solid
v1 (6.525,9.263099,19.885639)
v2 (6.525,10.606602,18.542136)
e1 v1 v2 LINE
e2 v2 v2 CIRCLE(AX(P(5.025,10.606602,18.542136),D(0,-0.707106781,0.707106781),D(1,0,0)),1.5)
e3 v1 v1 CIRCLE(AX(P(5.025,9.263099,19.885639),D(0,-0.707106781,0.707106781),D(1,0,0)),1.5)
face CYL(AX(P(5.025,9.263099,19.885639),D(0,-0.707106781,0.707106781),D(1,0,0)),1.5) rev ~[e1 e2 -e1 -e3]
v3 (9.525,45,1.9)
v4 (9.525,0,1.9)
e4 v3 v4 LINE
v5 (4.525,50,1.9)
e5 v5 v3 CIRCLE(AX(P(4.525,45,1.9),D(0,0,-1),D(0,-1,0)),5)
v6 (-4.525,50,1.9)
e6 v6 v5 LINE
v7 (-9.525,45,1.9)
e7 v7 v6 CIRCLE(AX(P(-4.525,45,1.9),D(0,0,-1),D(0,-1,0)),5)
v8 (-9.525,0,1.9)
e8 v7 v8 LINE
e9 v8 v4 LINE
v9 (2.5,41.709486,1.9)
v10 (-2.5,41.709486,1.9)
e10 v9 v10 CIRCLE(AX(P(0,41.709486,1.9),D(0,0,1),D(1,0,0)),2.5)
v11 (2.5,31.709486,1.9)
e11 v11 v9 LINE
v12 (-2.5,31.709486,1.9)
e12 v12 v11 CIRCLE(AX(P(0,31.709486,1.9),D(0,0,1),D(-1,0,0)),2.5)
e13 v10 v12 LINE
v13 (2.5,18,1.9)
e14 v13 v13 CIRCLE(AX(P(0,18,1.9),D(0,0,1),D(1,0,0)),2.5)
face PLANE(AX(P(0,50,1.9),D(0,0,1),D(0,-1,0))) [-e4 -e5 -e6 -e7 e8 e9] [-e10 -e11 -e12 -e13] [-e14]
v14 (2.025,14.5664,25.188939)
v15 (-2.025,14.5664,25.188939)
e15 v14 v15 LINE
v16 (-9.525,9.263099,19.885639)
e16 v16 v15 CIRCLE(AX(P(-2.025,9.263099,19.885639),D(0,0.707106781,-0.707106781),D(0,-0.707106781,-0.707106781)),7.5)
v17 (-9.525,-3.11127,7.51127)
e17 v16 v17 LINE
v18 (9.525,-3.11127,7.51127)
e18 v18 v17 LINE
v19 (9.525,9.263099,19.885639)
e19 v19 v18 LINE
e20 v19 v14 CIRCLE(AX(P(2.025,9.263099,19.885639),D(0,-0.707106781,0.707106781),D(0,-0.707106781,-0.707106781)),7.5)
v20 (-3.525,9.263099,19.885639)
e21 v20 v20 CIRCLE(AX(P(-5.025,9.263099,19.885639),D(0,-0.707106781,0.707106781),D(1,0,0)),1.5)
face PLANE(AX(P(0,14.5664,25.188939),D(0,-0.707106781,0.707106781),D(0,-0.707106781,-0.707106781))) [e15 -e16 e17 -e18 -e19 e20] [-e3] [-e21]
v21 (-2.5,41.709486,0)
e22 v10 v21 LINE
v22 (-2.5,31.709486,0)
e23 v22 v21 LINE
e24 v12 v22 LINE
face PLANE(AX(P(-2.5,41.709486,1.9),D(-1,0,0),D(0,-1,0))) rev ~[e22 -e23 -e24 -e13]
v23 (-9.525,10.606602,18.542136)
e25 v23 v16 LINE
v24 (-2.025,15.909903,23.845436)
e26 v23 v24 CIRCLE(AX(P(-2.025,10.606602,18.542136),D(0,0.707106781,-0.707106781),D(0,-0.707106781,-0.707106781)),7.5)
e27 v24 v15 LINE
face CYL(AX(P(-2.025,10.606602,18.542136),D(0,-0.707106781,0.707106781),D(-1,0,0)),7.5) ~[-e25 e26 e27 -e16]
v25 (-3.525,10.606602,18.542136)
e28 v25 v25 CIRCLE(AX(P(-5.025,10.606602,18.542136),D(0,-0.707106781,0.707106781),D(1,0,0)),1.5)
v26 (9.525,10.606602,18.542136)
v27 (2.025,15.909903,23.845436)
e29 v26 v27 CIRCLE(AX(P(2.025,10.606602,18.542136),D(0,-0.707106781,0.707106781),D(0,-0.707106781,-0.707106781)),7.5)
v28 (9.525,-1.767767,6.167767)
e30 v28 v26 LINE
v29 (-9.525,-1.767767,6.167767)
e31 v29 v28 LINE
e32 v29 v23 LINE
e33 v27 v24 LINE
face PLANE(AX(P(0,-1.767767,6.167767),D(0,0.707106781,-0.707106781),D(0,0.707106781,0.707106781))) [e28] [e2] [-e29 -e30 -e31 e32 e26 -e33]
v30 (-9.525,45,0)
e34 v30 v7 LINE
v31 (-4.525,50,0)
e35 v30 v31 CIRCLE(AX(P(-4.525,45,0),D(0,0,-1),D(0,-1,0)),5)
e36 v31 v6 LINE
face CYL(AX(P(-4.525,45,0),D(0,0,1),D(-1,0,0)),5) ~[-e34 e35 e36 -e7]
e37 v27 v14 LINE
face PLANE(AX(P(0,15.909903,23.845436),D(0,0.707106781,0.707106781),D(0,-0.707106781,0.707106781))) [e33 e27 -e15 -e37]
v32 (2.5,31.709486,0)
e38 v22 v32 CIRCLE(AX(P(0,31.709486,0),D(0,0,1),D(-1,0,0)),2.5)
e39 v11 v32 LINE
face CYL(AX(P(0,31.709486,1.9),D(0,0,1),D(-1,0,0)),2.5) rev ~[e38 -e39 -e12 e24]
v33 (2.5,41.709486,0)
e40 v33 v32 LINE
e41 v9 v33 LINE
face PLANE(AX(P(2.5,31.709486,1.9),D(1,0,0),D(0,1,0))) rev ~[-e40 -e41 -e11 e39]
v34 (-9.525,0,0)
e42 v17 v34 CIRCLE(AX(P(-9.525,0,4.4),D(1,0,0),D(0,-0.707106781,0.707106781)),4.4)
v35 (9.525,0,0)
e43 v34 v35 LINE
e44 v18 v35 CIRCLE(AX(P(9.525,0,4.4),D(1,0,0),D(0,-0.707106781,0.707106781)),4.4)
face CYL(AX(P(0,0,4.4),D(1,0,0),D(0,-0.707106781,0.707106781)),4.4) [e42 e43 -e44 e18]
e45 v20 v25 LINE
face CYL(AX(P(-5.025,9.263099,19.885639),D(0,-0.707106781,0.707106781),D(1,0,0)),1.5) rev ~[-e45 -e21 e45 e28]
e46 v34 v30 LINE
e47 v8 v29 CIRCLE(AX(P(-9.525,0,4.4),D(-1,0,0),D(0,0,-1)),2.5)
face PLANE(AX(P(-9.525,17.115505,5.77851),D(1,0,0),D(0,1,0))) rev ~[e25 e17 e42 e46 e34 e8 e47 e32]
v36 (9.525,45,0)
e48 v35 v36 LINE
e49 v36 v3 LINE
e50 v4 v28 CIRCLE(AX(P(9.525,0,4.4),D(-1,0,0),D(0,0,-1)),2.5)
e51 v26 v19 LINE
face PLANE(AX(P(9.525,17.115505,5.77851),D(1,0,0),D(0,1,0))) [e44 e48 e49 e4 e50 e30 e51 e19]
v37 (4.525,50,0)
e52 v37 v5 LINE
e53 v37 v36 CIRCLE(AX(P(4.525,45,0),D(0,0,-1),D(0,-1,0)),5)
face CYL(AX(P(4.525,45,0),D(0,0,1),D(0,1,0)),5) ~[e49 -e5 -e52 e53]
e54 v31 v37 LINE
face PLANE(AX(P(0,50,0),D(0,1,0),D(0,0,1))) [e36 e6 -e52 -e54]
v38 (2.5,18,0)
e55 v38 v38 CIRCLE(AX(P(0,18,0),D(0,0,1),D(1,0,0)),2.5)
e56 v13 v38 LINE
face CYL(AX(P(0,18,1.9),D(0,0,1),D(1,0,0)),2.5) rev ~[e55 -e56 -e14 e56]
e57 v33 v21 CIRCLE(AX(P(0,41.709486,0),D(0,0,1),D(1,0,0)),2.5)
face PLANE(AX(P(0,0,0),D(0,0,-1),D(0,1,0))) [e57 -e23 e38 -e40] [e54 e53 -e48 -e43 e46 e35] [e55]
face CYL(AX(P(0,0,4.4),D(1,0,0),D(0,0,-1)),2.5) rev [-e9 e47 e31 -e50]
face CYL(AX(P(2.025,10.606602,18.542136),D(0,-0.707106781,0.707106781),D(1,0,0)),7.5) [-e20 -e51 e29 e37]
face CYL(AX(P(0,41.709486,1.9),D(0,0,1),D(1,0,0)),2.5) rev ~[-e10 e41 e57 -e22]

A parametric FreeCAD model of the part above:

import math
import FreeCAD as App
import Part
import Sketcher
from FreeCAD import Vector
Q = App.Units.Quantity


def edges_at(feature, points):
    """Names of the edges that pass closest to the given points."""
    edges = feature.Shape.Edges
    near = lambda p: min(range(len(edges)), key=lambda i: edges[i].distToShape(Part.Vertex(*p))[0])
    return sorted({f"Edge{near(p) + 1}" for p in points})

doc = App.newDocument("Part")
body = doc.addObject("PartDesign::Body", "Body")

sketch1 = body.newObject("Sketcher::SketchObject", "Sketch")
sketch1.AttachmentSupport = (doc.getObject("YZ_Plane"), [""])
sketch1.MapMode = "FlatFace"
sketch1.addGeometry([
    Part.ArcOfCircle(Part.Circle(Vector(0, 4.4, 0), Vector(0, 0, 1), 4.4), math.radians(135), math.radians(270)),
    Part.LineSegment(Vector(0, 0, 0), Vector(50, 0, 0)),
    Part.LineSegment(Vector(50, 0, 0), Vector(50, 1.9, 0)),
    Part.LineSegment(Vector(50, 1.9, 0), Vector(0, 1.9, 0)),
    Part.ArcOfCircle(Part.Circle(Vector(0, 4.4, 0), Vector(0, 0, 1), 2.5), math.radians(135), math.radians(270)),
    Part.LineSegment(Vector(-1.8, 6.2, 0), Vector(15.9, 23.8, 0)),
    Part.LineSegment(Vector(15.9, 23.8, 0), Vector(14.6, 25.2, 0)),
    Part.LineSegment(Vector(14.6, 25.2, 0), Vector(-3.1, 7.5, 0)),
], False)
sketch1.addConstraint([
    Sketcher.Constraint("Tangent", 0, 2, 1, 1),
    Sketcher.Constraint("Coincident", 1, 2, 2, 1),
    Sketcher.Constraint("Coincident", 2, 2, 3, 1),
    Sketcher.Constraint("Tangent", 3, 2, 4, 2),
    Sketcher.Constraint("Tangent", 4, 1, 5, 1),
    Sketcher.Constraint("Coincident", 5, 2, 6, 1),
    Sketcher.Constraint("Coincident", 6, 2, 7, 1),
    Sketcher.Constraint("Tangent", 7, 2, 0, 1),
    Sketcher.Constraint("Horizontal", 1),
    Sketcher.Constraint("Vertical", 2),
    Sketcher.Constraint("Horizontal", 3),
    Sketcher.Constraint("Coincident", 0, 2, -1, 1),
    Sketcher.Constraint("Coincident", 4, 3, 0, 3),
    Sketcher.Constraint("Perpendicular", 5, 6),
    Sketcher.Constraint("Perpendicular", 6, 7),
    Sketcher.Constraint("Radius", 0, Q("4.4 mm")),
    Sketcher.Constraint("Radius", 4, Q("2.5 mm")),
    Sketcher.Constraint("DistanceX", 1, 1, 1, 2, Q("50 mm")),
    Sketcher.Constraint("Angle", 5, Q("45 deg")),
    Sketcher.Constraint("Distance", 5, Q("25 mm")),
])
pad1 = body.newObject("PartDesign::Pad", "Pad")
pad1.Profile = sketch1
pad1.Length = 19.05
pad1.Midplane = True

sketch2 = body.newObject("Sketcher::SketchObject", "Sketch001")
sketch2.AttachmentSupport = (doc.getObject("XY_Plane"), [""])
sketch2.MapMode = "FlatFace"
sketch2.AttachmentOffset = App.Placement(Vector(0, 0, 1.9), App.Rotation())
sketch2.addGeometry([
    Part.Circle(Vector(0, 18, 0), Vector(0, 0, 1), 2.5),
    Part.LineSegment(Vector(2.5, 31.7, 0), Vector(2.5, 41.7, 0)),
    Part.ArcOfCircle(Part.Circle(Vector(0, 41.7, 0), Vector(0, 0, 1), 2.5), math.radians(0), math.radians(180)),
    Part.LineSegment(Vector(-2.5, 41.7, 0), Vector(-2.5, 31.7, 0)),
    Part.ArcOfCircle(Part.Circle(Vector(0, 31.7, 0), Vector(0, 0, 1), 2.5), math.radians(180), math.radians(360)),
], False)
sketch2.addConstraint([
    Sketcher.Constraint("Tangent", 1, 2, 2, 1),
    Sketcher.Constraint("Tangent", 2, 2, 3, 1),
    Sketcher.Constraint("Tangent", 3, 2, 4, 1),
    Sketcher.Constraint("Tangent", 4, 2, 1, 1),
    Sketcher.Constraint("Vertical", 1),
    Sketcher.Constraint("Vertical", 3),
    Sketcher.Constraint("Equal", 0, 2),
    Sketcher.Constraint("PointOnObject", 0, 3, -2),
    Sketcher.Constraint("PointOnObject", 2, 3, -2),
    Sketcher.Constraint("Diameter", 0, Q("5 mm")),
    Sketcher.Constraint("DistanceY", 1, 1, 1, 2, Q("10 mm")),
    Sketcher.Constraint("DistanceY", -1, 1, 0, 3, Q("18 mm")),
    Sketcher.Constraint("DistanceY", -1, 1, 2, 3, Q("41.709486 mm")),
])
pocket1 = body.newObject("PartDesign::Pocket", "Pocket")
pocket1.Profile = sketch2
pocket1.Type = "ThroughAll"

sketch3 = body.newObject("Sketcher::SketchObject", "Sketch002")
sketch3.Placement = App.Placement(Vector(0, -5.31127, 5.31127), App.Rotation(Vector(1, 0, 0), Vector(0, 0.707106781, 0.707106781), Vector(0, -0.707106781, 0.707106781), "ZXY"))
sketch3.addGeometry([
    Part.Circle(Vector(-5, 20.6, 0), Vector(0, 0, 1), 1.5),
    Part.Circle(Vector(5, 20.6, 0), Vector(0, 0, 1), 1.5),
], False)
sketch3.addConstraint([
    Sketcher.Constraint("Equal", 0, 1),
    Sketcher.Constraint("Symmetric", 0, 3, 1, 3, -2),
    Sketcher.Constraint("Diameter", 0, Q("3 mm")),
    Sketcher.Constraint("DistanceX", 0, 3, 1, 3, Q("10.05 mm")),
    Sketcher.Constraint("DistanceY", -1, 1, 0, 3, Q("20.61127 mm")),
])
pocket2 = body.newObject("PartDesign::Pocket", "Pocket001")
pocket2.Profile = sketch3
pocket2.Length = 1.9
doc.recompute()

fillet = body.newObject("PartDesign::Fillet", "Fillet")
fillet.Base = (pocket2, edges_at(pocket2, [(9.525, 15.238, 24.517), (-9.525, 15.238, 24.517)]))
fillet.Radius = 7.5
doc.recompute()

fillet2 = body.newObject("PartDesign::Fillet", "Fillet001")
fillet2.Base = (fillet, edges_at(fillet, [(-9.525, 50, 0.95), (9.525, 50, 0.95)]))
fillet2.Radius = 5

doc.recompute()
